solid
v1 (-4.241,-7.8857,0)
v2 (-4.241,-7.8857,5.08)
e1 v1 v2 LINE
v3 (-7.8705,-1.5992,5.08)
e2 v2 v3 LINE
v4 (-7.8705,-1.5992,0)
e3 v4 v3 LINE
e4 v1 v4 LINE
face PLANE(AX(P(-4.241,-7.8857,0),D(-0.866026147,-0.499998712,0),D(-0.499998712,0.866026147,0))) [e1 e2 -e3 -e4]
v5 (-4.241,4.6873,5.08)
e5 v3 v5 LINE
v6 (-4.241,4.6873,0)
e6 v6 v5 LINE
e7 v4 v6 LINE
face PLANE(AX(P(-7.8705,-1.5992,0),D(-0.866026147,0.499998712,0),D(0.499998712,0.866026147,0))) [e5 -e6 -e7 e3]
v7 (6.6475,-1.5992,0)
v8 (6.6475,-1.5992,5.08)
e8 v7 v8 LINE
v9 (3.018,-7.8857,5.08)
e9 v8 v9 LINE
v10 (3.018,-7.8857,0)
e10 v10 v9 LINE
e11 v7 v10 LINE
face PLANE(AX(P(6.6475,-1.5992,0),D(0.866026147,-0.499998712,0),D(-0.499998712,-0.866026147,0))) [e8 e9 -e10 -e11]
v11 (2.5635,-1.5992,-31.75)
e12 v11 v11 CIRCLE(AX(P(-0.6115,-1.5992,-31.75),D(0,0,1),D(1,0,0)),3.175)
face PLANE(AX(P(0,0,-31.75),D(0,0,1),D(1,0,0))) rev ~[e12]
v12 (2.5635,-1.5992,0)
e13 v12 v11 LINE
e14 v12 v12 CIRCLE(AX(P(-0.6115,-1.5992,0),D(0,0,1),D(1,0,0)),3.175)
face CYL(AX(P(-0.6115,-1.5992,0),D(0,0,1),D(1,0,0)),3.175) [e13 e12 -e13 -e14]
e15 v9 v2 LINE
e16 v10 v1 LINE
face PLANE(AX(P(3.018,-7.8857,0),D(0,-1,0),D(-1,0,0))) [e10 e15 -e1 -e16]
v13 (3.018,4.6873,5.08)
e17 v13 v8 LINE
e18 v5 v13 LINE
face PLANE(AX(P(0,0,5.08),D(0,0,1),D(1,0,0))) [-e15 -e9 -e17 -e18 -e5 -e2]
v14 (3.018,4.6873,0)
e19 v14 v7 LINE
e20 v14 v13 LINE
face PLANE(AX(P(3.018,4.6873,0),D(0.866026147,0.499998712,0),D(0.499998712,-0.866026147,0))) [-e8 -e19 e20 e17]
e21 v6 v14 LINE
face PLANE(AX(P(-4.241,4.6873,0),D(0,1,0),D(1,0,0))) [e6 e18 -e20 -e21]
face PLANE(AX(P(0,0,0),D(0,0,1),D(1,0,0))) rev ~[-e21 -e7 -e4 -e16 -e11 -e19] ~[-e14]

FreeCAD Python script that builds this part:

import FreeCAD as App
import Part
import Sketcher
from FreeCAD import Vector
Q = App.Units.Quantity

doc = App.newDocument("Part")
body = doc.addObject("PartDesign::Body", "Body")

# Sketch on XY plane
sketch1 = doc.addObject("Sketcher::SketchObject", "Sketch")
body.addObject(sketch1)
sketch1.AttachmentSupport = (doc.XY_Plane, [""])
sketch1.MapMode = "FlatFace"
sketch1.addGeometry(Part.Circle(Vector(-0.6115, -1.5992, 0), Vector(0, 0, 1), 3.175), False)
sketch1.addConstraint(Sketcher.Constraint("Diameter", 0, Q("0.25 in")))
sketch1.addConstraint(Sketcher.Constraint("DistanceX", 0, 3, -1, 1, Q("0.6115 mm")))
sketch1.addConstraint(Sketcher.Constraint("DistanceY", 0, 3, -1, 1, Q("1.5992 mm")))
pad1 = doc.addObject("PartDesign::Pad", "Pad")
body.addObject(pad1)
pad1.Profile = sketch1
pad1.Length = Q("1.25 in")
pad1.Reversed = True

# Sketch on XY plane
sketch2 = doc.addObject("Sketcher::SketchObject", "Sketch001")
body.addObject(sketch2)
sketch2.AttachmentSupport = (doc.XY_Plane, [""])
sketch2.MapMode = "FlatFace"
sketch2.addGeometry(Part.LineSegment(Vector(-4.241, 4.6873, 0), Vector(-7.8705, -1.5992, 0)), False)
sketch2.addGeometry(Part.LineSegment(Vector(-7.8705, -1.5992, 0), Vector(-4.241, -7.8857, 0)), False)
sketch2.addGeometry(Part.LineSegment(Vector(-4.241, -7.8857, 0), Vector(3.018, -7.8857, 0)), False)
sketch2.addGeometry(Part.LineSegment(Vector(3.018, -7.8857, 0), Vector(6.6475, -1.5992, 0)), False)
sketch2.addGeometry(Part.LineSegment(Vector(6.6475, -1.5992, 0), Vector(3.018, 4.6873, 0)), False)
sketch2.addGeometry(Part.LineSegment(Vector(3.018, 4.6873, 0), Vector(-4.241, 4.6873, 0)), False)
sketch2.addConstraint(Sketcher.Constraint("Coincident", 0, 2, 1, 1))
sketch2.addConstraint(Sketcher.Constraint("Coincident", 1, 2, 2, 1))
sketch2.addConstraint(Sketcher.Constraint("Coincident", 2, 2, 3, 1))
sketch2.addConstraint(Sketcher.Constraint("Coincident", 3, 2, 4, 1))
sketch2.addConstraint(Sketcher.Constraint("Coincident", 4, 2, 5, 1))
sketch2.addConstraint(Sketcher.Constraint("Coincident", 5, 2, 0, 1))
sketch2.addConstraint(Sketcher.Constraint("Horizontal", 2))
sketch2.addConstraint(Sketcher.Constraint("Horizontal", 5))
sketch2.addConstraint(Sketcher.Constraint("Parallel", 0, 3))
sketch2.addConstraint(Sketcher.Constraint("Parallel", 1, 4))
sketch2.addConstraint(Sketcher.Constraint("Horizontal", 0, 2, 3, 2))
sketch2.addConstraint(Sketcher.Constraint("Vertical", 2, 2, 4, 2))
sketch2.addConstraint(Sketcher.Constraint("Vertical", 1, 2, 5, 2))
sketch2.addConstraint(Sketcher.Constraint("Angle", 0, Q("-120 deg")))
sketch2.addConstraint(Sketcher.Constraint("DistanceY", 2, 2, 4, 2, Q("0.495 in")))
sketch2.addConstraint(Sketcher.Constraint("DistanceX", 2, 1, 2, 2, Q("7.259 mm")))
sketch2.addConstraint(Sketcher.Constraint("DistanceX", 0, 2, -1, 1, Q("7.8705 mm")))
sketch2.addConstraint(Sketcher.Constraint("DistanceY", 0, 2, -1, 1, Q("1.5992 mm")))
pad2 = doc.addObject("PartDesign::Pad", "Pad001")
body.addObject(pad2)
pad2.Profile = sketch2
pad2.Length = Q("0.2 in")

doc.recompute()
